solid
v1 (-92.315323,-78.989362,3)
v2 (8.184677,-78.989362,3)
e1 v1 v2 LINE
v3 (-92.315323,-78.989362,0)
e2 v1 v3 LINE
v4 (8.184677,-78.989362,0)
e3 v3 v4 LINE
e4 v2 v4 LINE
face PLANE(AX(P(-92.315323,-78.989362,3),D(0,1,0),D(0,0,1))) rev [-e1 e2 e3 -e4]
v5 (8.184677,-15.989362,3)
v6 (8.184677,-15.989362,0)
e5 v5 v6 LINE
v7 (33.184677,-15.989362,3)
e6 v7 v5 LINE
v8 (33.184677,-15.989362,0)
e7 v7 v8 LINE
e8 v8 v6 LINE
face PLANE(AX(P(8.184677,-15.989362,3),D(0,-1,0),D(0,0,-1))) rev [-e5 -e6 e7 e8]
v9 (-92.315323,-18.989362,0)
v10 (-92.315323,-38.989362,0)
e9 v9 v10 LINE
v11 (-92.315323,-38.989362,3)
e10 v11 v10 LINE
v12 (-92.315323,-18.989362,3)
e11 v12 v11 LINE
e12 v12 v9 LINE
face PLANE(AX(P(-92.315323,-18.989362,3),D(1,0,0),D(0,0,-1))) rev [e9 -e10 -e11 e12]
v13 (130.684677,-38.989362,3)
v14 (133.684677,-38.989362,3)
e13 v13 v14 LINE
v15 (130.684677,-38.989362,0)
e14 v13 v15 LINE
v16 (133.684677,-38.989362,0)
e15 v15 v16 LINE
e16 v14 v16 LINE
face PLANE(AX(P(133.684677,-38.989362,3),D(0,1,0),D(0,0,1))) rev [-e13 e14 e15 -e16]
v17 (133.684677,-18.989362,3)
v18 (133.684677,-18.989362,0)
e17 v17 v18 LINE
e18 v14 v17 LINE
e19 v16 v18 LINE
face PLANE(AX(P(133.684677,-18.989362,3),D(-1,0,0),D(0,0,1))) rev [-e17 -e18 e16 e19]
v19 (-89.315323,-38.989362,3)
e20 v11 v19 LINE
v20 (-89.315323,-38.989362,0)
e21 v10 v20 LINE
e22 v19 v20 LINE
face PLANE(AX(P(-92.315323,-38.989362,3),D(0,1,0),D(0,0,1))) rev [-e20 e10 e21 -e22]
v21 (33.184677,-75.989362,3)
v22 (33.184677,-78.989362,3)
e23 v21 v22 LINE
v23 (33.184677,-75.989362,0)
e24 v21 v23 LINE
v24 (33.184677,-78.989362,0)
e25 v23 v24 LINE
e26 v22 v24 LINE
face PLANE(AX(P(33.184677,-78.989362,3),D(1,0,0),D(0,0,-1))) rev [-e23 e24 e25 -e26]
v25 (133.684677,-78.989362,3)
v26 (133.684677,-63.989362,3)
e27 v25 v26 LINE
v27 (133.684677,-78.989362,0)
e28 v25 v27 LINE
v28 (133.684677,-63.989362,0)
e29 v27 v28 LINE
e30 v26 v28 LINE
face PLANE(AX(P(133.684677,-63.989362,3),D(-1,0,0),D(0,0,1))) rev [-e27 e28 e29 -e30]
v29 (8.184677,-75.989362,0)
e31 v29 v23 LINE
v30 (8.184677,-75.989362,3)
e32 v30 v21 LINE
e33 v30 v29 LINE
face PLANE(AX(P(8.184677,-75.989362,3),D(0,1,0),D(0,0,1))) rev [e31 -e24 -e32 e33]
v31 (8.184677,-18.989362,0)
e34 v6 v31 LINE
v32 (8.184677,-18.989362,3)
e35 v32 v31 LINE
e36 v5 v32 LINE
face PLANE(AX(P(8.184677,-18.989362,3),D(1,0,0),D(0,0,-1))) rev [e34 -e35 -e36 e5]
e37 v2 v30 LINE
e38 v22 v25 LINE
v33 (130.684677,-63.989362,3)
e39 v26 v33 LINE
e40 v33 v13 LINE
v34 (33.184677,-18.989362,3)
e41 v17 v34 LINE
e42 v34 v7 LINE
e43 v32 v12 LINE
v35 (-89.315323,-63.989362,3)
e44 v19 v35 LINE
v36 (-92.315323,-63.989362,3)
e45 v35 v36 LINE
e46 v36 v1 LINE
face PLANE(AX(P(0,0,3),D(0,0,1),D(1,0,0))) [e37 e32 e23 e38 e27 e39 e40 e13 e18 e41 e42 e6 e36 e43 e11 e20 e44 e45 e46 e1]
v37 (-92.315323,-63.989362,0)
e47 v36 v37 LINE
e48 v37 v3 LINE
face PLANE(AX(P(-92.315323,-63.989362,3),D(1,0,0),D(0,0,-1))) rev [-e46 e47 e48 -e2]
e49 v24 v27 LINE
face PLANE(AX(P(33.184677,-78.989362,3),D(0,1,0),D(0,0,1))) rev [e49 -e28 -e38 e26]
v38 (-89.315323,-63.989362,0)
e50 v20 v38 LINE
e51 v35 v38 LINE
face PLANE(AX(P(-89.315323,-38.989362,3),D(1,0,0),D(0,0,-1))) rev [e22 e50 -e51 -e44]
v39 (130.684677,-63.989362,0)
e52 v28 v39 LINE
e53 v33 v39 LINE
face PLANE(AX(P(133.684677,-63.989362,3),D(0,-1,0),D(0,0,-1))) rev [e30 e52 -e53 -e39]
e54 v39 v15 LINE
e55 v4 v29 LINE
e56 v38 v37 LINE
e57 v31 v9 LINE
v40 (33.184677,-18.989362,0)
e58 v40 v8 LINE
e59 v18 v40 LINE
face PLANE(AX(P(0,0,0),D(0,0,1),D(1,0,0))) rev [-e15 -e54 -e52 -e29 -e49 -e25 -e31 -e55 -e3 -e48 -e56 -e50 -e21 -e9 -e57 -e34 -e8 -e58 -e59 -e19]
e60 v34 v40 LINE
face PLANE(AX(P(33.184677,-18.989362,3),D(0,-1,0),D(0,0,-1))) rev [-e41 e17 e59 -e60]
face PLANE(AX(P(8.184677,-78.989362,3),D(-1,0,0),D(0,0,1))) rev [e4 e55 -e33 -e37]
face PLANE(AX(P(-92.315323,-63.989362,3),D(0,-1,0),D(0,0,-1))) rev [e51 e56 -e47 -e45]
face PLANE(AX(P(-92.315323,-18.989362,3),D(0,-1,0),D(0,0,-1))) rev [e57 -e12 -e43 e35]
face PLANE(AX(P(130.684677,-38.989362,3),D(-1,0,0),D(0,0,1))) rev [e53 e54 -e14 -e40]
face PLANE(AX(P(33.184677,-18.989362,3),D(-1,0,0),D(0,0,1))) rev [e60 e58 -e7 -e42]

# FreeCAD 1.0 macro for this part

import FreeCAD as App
import Part
import Sketcher
from FreeCAD import Vector
Q = App.Units.Quantity


def add_polygon(sketch, points):
    """Adds a closed chain of lines whose ends are joined by coincident constraints."""
    first, n = sketch.GeometryCount, len(points)
    for a, b in zip(points, points[1:] + points[:1]):
        sketch.addGeometry(Part.LineSegment(App.Vector(*a, 0), App.Vector(*b, 0)), False)
    for i in range(n):
        sketch.addConstraint(Sketcher.Constraint("Coincident", first + i, 2, first + (i + 1) % n, 1))

doc = App.newDocument("Part")
body = doc.addObject("PartDesign::Body", "Body")

sketch1 = doc.addObject("Sketcher::SketchObject", "Sketch")
body.addObject(sketch1)
sketch1.AttachmentSupport = (doc.XY_Plane, [""])
sketch1.MapMode = "FlatFace"
add_polygon(sketch1, [(-92.3, -64), (-92.3, -79), (8.2, -79), (8.2, -76), (33.2, -76), (33.2, -79), (133.7, -79), (133.7, -64), (130.7, -64), (130.7, -39), (133.7, -39), (133.7, -19), (33.2, -19), (33.2, -16), (8.2, -16), (8.2, -19), (-92.3, -19), (-92.3, -39), (-89.3, -39), (-89.3, -64)])
sketch1.addConstraint([
    Sketcher.Constraint("Vertical", 0),
    Sketcher.Constraint("Horizontal", 1),
    Sketcher.Constraint("Vertical", 2),
    Sketcher.Constraint("Horizontal", 3),
    Sketcher.Constraint("Vertical", 4),
    Sketcher.Constraint("Horizontal", 5),
    Sketcher.Constraint("Vertical", 6),
    Sketcher.Constraint("Horizontal", 7),
    Sketcher.Constraint("Vertical", 8),
    Sketcher.Constraint("Horizontal", 9),
    Sketcher.Constraint("Vertical", 10),
    Sketcher.Constraint("Horizontal", 11),
    Sketcher.Constraint("Vertical", 12),
    Sketcher.Constraint("Horizontal", 13),
    Sketcher.Constraint("Vertical", 14),
    Sketcher.Constraint("Horizontal", 15),
    Sketcher.Constraint("Vertical", 16),
    Sketcher.Constraint("Horizontal", 17),
    Sketcher.Constraint("Vertical", 18),
    Sketcher.Constraint("Horizontal", 19),
    Sketcher.Constraint("Horizontal", 1, 2, 4, 2),
    Sketcher.Constraint("Horizontal", 11, 2, 14, 2),
    Sketcher.Constraint("Horizontal", 9, 2, 16, 2),
    Sketcher.Constraint("Horizontal", 7, 2, 18, 2),
    Sketcher.Constraint("Vertical", 6, 2, 9, 2),
    Sketcher.Constraint("Vertical", 4, 2, 11, 2),
    Sketcher.Constraint("Vertical", 2, 2, 13, 2),
    Sketcher.Constraint("Vertical", 0, 2, 15, 2),
    Sketcher.Constraint("Equal", 1, 5),
    Sketcher.Constraint("Equal", 9, 17),
    Sketcher.Constraint("Equal", 19, 2),
    Sketcher.Constraint("Equal", 13, 8),
    Sketcher.Constraint("Equal", 4, 12),
    Sketcher.Constraint("DistanceX", 3, 1, 3, 2, Q("25 mm")),
    Sketcher.Constraint("DistanceX", 7, 2, 7, 1, Q("3 mm")),
    Sketcher.Constraint("DistanceY", 0, 2, 0, 1, Q("15 mm")),
    Sketcher.Constraint("DistanceY", 10, 1, 10, 2, Q("20 mm")),
    Sketcher.Constraint("DistanceX", 1, 1, 1, 2, Q("100.5 mm")),
    Sketcher.Constraint("DistanceY", 0, 2, -1, 1, Q("78.989362 mm")),
    Sketcher.Constraint("DistanceX", 0, 2, -1, 1, Q("92.315323 mm")),
])
pad1 = doc.addObject("PartDesign::Pad", "Pad")
body.addObject(pad1)
pad1.Profile = sketch1
pad1.Length = 3

doc.recompute()
